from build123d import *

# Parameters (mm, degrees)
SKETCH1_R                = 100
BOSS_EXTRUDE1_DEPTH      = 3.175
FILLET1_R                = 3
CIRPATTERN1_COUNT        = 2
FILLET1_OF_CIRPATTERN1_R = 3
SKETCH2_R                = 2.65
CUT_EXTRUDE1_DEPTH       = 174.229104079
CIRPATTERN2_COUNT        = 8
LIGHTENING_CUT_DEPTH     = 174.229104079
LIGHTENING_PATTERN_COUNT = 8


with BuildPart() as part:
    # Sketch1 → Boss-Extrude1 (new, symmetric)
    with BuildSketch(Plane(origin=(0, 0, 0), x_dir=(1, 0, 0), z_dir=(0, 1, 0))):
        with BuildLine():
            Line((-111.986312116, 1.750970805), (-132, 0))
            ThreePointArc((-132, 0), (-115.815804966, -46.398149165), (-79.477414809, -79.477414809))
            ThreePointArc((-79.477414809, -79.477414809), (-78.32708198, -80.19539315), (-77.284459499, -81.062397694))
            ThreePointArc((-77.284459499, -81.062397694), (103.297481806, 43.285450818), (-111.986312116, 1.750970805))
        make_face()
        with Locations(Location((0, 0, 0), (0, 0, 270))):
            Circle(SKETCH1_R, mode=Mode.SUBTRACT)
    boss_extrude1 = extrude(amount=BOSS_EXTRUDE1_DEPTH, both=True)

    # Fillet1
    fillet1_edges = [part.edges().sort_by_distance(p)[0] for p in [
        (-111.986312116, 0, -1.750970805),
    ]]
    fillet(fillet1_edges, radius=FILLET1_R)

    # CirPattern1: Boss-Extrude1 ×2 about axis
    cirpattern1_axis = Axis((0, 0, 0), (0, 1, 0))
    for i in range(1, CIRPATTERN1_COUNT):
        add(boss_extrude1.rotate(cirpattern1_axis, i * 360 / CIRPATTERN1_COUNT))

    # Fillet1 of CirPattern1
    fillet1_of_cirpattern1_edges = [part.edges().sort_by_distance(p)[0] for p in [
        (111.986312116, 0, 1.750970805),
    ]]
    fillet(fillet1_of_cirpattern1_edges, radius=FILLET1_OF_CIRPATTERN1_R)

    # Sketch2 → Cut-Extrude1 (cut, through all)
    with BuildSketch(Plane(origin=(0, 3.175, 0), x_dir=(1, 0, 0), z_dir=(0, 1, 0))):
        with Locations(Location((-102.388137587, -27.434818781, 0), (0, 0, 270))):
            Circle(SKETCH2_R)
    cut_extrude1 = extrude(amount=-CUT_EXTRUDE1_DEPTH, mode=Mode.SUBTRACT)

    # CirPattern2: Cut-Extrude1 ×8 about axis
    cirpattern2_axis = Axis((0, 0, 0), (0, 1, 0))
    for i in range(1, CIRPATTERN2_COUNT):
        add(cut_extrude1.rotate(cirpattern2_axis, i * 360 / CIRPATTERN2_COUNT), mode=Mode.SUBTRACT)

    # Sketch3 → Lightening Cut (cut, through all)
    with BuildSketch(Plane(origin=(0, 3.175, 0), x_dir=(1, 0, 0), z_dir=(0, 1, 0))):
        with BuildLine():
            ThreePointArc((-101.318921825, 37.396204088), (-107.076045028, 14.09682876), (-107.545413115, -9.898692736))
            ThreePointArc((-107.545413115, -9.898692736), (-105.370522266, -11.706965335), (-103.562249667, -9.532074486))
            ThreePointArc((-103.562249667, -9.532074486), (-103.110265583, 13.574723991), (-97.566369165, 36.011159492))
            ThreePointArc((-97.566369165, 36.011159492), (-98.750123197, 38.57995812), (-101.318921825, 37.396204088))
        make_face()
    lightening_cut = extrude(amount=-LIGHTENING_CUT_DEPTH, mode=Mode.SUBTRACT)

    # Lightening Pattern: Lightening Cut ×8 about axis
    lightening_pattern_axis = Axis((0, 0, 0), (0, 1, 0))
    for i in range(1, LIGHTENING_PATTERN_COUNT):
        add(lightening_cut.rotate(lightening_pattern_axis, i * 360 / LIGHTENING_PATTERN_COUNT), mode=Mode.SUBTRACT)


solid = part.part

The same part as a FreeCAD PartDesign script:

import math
import FreeCAD as App
import Part
import Sketcher

V = App.Vector
Q = App.Units.Quantity


def edges_at(feature, points):
    """Names of the edges that pass closest to the given points."""
    edges = feature.Shape.Edges
    near = lambda p: min(range(len(edges)), key=lambda i: edges[i].distToShape(Part.Vertex(*p))[0])
    return sorted({f"Edge{near(p) + 1}" for p in points})

doc = App.newDocument("Part")
body = doc.addObject("PartDesign::Body", "Body")

sketch1 = body.newObject("Sketcher::SketchObject", "Sketch")
sketch1.AttachmentSupport = (doc.getObject("XZ_Plane"), [""])
sketch1.MapMode = "FlatFace"
sketch1.addGeometry([
    Part.LineSegment(V(-111.986312, -1.750971, 0), V(-132, 0, 0)),
    Part.ArcOfCircle(Part.Circle(V(-32.423104, -8.71185, 0), V(0, 0, 1), 99.957263), math.radians(118.082621), math.radians(175)),
    Part.ArcOfCircle(Part.Circle(V(-84.184858, 88.300112, 0), V(0, 0, 1), 10), math.radians(-61.917379), math.radians(-46.366739)),
    Part.ArcOfCircle(Part.Circle(V(0, 0, 0), V(0, 0, 1), 112), math.radians(-179.10422), math.radians(133.633261)),
    Part.Circle(V(0, 0, 0), V(0, 0, 1), 100),
], False)
sketch1.addConstraint([
    Sketcher.Constraint("Coincident", 0, 2, 1, 2),
    Sketcher.Constraint("Tangent", 1, 1, 2, 1),
    Sketcher.Constraint("Tangent", 2, 2, 3, 2),
    Sketcher.Constraint("Coincident", 3, 1, 0, 1),
    Sketcher.Constraint("Coincident", 3, 3, -1, 1),
    Sketcher.Constraint("Coincident", 4, 3, -1, 1),
    Sketcher.Constraint("PointOnObject", 0, 2, -1),
    Sketcher.Constraint("Diameter", 4, 200.0),
    Sketcher.Constraint("Radius", 2, 10.0),
    Sketcher.Constraint("Radius", 3, 112.0),
    Sketcher.Constraint("Angle", 0, Q("175 deg")),
    Sketcher.Constraint("DistanceX", 0, 2, -1, 1, 132.0),
    Sketcher.Constraint("Radius", 1, 99.957263),
    Sketcher.Constraint("DistanceX", 2, 3, 2, 2, 6.900398),
])
pad1 = body.newObject("PartDesign::Pad", "Pad")
pad1.Profile = sketch1
pad1.Length = 6.35
pad1.Midplane = True
doc.recompute()

fillet = body.newObject("PartDesign::Fillet", "Fillet")
fillet.Base = (pad1, edges_at(pad1, [(-111.986, 0, -1.751)]))
fillet.Radius = 3
doc.recompute()

polarpattern = body.newObject("PartDesign::PolarPattern", "PolarPattern")
polarpattern.Originals = [pad1]
polarpattern.Axis = (doc.getObject("Y_Axis"), [""])
polarpattern.Angle = 360
polarpattern.Occurrences = 2
body.Tip = polarpattern
doc.recompute()

fillet2 = body.newObject("PartDesign::Fillet", "Fillet001")
fillet2.Base = (polarpattern, edges_at(polarpattern, [(111.986, 0, 1.751)]))
fillet2.Radius = 3

sketch2 = body.newObject("Sketcher::SketchObject", "Sketch001")
sketch2.AttachmentSupport = (doc.getObject("XZ_Plane"), [""])
sketch2.MapMode = "FlatFace"
sketch2.AttachmentOffset = App.Placement(V(0, 0, -3.175), App.Rotation())
sketch2.addGeometry(Part.Circle(V(-102.388138, 27.434819, 0), V(0, 0, 1), 2.65), False)
sketch2.addConstraint([
    Sketcher.Constraint("Diameter", 0, 5.3),
    Sketcher.Constraint("DistanceY", -1, 1, 0, 3, 27.434819),
    Sketcher.Constraint("DistanceX", 0, 3, -1, 1, 102.388138),
])
pocket1 = body.newObject("PartDesign::Pocket", "Pocket")
pocket1.Profile = sketch2
pocket1.Type = "ThroughAll"
pocket1.Reversed = True
doc.recompute()

polarpattern2 = body.newObject("PartDesign::PolarPattern", "PolarPattern001")
polarpattern2.Originals = [pocket1]
polarpattern2.Axis = (doc.getObject("Y_Axis"), [""])
polarpattern2.Angle = 360
polarpattern2.Occurrences = 8
body.Tip = polarpattern2

sketch3 = body.newObject("Sketcher::SketchObject", "Sketch002")
sketch3.AttachmentSupport = (doc.getObject("XZ_Plane"), [""])
sketch3.MapMode = "FlatFace"
sketch3.AttachmentOffset = App.Placement(V(0, 0, -3.175), App.Rotation())
sketch3.addGeometry([
    Part.ArcOfCircle(Part.Circle(V(0, 0, 0), V(0, 0, 1), 108), math.radians(174.7412), math.radians(200.2588)),
    Part.ArcOfCircle(Part.Circle(V(-105.553831, 9.715384, 0), V(0, 0, 1), 2), math.radians(-5.2588), math.radians(174.7412)),
    Part.ArcOfCircle(Part.Circle(V(0, 0, 0), V(0, 0, 1), 104), math.radians(174.7412), math.radians(200.2588)),
    Part.ArcOfCircle(Part.Circle(V(-99.442645, -36.703682, 0), V(0, 0, 1), 2), math.radians(-159.7412), math.radians(20.2588)),
], False)
sketch3.addConstraint([
    Sketcher.Constraint("Tangent", 0, 1, 1, 2),
    Sketcher.Constraint("Tangent", 1, 1, 2, 1),
    Sketcher.Constraint("Tangent", 2, 2, 3, 2),
    Sketcher.Constraint("Tangent", 3, 1, 0, 2),
    Sketcher.Constraint("Coincident", 0, 3, -1, 1),
    Sketcher.Constraint("Coincident", 2, 3, -1, 1),
    Sketcher.Constraint("Radius", 0, 108.0),
    Sketcher.Constraint("Radius", 1, 2.0),
    Sketcher.Constraint("DistanceX", 1, 3, -1, 1, 105.553831),
    Sketcher.Constraint("DistanceY", 3, 3, -1, 1, 36.703682),
])
pocket2 = body.newObject("PartDesign::Pocket", "Pocket001")
pocket2.Profile = sketch3
pocket2.Type = "ThroughAll"
pocket2.Reversed = True
doc.recompute()

polarpattern3 = body.newObject("PartDesign::PolarPattern", "PolarPattern002")
polarpattern3.Originals = [pocket2]
polarpattern3.Axis = (doc.getObject("Y_Axis"), [""])
polarpattern3.Angle = 360
polarpattern3.Occurrences = 8
body.Tip = polarpattern3

doc.recompute()
